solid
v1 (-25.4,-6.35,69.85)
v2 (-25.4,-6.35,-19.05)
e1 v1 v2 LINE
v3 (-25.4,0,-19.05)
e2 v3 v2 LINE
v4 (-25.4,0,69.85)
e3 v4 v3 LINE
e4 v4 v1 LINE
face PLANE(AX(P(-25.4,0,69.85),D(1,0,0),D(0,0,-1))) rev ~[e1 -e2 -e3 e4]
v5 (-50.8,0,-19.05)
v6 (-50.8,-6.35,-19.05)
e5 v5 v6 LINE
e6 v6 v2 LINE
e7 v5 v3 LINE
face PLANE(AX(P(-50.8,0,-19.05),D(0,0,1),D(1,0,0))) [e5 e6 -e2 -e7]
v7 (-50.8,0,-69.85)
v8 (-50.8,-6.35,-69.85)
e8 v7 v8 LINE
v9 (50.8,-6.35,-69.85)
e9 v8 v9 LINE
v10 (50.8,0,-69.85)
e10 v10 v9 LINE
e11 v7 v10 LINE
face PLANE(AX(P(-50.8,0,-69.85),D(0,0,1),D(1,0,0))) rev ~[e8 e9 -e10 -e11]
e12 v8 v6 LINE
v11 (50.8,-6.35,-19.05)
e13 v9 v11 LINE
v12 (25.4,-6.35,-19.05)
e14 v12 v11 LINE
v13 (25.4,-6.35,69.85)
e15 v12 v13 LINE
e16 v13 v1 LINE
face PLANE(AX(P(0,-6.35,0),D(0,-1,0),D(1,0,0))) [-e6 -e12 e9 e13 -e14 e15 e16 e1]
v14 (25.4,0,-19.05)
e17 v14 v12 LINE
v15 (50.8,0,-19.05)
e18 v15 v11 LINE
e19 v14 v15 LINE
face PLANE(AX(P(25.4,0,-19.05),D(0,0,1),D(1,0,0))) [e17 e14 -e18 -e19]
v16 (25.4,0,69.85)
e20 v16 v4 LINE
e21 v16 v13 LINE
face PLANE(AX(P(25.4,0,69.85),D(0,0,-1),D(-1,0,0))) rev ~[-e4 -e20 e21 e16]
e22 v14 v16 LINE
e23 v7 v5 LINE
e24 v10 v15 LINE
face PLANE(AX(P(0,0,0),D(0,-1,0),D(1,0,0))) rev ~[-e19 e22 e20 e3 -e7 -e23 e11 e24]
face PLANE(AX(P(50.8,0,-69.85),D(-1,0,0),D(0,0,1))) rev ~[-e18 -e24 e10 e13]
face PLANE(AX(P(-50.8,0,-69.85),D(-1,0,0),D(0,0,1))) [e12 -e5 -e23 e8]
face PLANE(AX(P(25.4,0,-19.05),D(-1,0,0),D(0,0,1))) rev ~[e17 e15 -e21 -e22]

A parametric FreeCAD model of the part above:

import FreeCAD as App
import Part
import Sketcher

V = App.Vector
Q = App.Units.Quantity


def add_polygon(sketch, points):
    """Adds a closed chain of lines whose ends are joined by coincident constraints."""
    first, n = sketch.GeometryCount, len(points)
    for a, b in zip(points, points[1:] + points[:1]):
        sketch.addGeometry(Part.LineSegment(App.Vector(*a, 0), App.Vector(*b, 0)), False)
    for i in range(n):
        sketch.addConstraint(Sketcher.Constraint("Coincident", first + i, 2, first + (i + 1) % n, 1))

doc = App.newDocument("Part")
body = doc.addObject("PartDesign::Body", "Body")

sketch1 = body.newObject("Sketcher::SketchObject", "Sketch")
sketch1.AttachmentSupport = (doc.getObject("XZ_Plane"), [""])
sketch1.MapMode = "FlatFace"
add_polygon(sketch1, [(25, 70), (-25, 70), (-25, -19), (-51, -19), (-51, -70), (51, -70), (51, -19), (25, -19)])
sketch1.addConstraint([
    Sketcher.Constraint("Horizontal", 0),
    Sketcher.Constraint("Vertical", 1),
    Sketcher.Constraint("Horizontal", 2),
    Sketcher.Constraint("Vertical", 3),
    Sketcher.Constraint("Horizontal", 4),
    Sketcher.Constraint("Vertical", 5),
    Sketcher.Constraint("Horizontal", 6),
    Sketcher.Constraint("Vertical", 7),
    Sketcher.Constraint("Symmetric", 2, 2, 5, 2, -2),
    Sketcher.Constraint("Equal", 2, 6),
    Sketcher.Constraint("Equal", 0, 3),
    Sketcher.Constraint("DistanceX", 0, 2, 0, 1, Q("2 in")),
    Sketcher.Constraint("DistanceX", 2, 2, 2, 1, Q("1 in")),
    Sketcher.Constraint("DistanceY", 1, 2, 1, 1, Q("3.5 in")),
    Sketcher.Constraint("DistanceY", -1, 1, 0, 2, Q("2.75 in")),
])
pad1 = body.newObject("PartDesign::Pad", "Pad")
pad1.Profile = sketch1
pad1.Length = Q("0.25 in")

doc.recompute()
